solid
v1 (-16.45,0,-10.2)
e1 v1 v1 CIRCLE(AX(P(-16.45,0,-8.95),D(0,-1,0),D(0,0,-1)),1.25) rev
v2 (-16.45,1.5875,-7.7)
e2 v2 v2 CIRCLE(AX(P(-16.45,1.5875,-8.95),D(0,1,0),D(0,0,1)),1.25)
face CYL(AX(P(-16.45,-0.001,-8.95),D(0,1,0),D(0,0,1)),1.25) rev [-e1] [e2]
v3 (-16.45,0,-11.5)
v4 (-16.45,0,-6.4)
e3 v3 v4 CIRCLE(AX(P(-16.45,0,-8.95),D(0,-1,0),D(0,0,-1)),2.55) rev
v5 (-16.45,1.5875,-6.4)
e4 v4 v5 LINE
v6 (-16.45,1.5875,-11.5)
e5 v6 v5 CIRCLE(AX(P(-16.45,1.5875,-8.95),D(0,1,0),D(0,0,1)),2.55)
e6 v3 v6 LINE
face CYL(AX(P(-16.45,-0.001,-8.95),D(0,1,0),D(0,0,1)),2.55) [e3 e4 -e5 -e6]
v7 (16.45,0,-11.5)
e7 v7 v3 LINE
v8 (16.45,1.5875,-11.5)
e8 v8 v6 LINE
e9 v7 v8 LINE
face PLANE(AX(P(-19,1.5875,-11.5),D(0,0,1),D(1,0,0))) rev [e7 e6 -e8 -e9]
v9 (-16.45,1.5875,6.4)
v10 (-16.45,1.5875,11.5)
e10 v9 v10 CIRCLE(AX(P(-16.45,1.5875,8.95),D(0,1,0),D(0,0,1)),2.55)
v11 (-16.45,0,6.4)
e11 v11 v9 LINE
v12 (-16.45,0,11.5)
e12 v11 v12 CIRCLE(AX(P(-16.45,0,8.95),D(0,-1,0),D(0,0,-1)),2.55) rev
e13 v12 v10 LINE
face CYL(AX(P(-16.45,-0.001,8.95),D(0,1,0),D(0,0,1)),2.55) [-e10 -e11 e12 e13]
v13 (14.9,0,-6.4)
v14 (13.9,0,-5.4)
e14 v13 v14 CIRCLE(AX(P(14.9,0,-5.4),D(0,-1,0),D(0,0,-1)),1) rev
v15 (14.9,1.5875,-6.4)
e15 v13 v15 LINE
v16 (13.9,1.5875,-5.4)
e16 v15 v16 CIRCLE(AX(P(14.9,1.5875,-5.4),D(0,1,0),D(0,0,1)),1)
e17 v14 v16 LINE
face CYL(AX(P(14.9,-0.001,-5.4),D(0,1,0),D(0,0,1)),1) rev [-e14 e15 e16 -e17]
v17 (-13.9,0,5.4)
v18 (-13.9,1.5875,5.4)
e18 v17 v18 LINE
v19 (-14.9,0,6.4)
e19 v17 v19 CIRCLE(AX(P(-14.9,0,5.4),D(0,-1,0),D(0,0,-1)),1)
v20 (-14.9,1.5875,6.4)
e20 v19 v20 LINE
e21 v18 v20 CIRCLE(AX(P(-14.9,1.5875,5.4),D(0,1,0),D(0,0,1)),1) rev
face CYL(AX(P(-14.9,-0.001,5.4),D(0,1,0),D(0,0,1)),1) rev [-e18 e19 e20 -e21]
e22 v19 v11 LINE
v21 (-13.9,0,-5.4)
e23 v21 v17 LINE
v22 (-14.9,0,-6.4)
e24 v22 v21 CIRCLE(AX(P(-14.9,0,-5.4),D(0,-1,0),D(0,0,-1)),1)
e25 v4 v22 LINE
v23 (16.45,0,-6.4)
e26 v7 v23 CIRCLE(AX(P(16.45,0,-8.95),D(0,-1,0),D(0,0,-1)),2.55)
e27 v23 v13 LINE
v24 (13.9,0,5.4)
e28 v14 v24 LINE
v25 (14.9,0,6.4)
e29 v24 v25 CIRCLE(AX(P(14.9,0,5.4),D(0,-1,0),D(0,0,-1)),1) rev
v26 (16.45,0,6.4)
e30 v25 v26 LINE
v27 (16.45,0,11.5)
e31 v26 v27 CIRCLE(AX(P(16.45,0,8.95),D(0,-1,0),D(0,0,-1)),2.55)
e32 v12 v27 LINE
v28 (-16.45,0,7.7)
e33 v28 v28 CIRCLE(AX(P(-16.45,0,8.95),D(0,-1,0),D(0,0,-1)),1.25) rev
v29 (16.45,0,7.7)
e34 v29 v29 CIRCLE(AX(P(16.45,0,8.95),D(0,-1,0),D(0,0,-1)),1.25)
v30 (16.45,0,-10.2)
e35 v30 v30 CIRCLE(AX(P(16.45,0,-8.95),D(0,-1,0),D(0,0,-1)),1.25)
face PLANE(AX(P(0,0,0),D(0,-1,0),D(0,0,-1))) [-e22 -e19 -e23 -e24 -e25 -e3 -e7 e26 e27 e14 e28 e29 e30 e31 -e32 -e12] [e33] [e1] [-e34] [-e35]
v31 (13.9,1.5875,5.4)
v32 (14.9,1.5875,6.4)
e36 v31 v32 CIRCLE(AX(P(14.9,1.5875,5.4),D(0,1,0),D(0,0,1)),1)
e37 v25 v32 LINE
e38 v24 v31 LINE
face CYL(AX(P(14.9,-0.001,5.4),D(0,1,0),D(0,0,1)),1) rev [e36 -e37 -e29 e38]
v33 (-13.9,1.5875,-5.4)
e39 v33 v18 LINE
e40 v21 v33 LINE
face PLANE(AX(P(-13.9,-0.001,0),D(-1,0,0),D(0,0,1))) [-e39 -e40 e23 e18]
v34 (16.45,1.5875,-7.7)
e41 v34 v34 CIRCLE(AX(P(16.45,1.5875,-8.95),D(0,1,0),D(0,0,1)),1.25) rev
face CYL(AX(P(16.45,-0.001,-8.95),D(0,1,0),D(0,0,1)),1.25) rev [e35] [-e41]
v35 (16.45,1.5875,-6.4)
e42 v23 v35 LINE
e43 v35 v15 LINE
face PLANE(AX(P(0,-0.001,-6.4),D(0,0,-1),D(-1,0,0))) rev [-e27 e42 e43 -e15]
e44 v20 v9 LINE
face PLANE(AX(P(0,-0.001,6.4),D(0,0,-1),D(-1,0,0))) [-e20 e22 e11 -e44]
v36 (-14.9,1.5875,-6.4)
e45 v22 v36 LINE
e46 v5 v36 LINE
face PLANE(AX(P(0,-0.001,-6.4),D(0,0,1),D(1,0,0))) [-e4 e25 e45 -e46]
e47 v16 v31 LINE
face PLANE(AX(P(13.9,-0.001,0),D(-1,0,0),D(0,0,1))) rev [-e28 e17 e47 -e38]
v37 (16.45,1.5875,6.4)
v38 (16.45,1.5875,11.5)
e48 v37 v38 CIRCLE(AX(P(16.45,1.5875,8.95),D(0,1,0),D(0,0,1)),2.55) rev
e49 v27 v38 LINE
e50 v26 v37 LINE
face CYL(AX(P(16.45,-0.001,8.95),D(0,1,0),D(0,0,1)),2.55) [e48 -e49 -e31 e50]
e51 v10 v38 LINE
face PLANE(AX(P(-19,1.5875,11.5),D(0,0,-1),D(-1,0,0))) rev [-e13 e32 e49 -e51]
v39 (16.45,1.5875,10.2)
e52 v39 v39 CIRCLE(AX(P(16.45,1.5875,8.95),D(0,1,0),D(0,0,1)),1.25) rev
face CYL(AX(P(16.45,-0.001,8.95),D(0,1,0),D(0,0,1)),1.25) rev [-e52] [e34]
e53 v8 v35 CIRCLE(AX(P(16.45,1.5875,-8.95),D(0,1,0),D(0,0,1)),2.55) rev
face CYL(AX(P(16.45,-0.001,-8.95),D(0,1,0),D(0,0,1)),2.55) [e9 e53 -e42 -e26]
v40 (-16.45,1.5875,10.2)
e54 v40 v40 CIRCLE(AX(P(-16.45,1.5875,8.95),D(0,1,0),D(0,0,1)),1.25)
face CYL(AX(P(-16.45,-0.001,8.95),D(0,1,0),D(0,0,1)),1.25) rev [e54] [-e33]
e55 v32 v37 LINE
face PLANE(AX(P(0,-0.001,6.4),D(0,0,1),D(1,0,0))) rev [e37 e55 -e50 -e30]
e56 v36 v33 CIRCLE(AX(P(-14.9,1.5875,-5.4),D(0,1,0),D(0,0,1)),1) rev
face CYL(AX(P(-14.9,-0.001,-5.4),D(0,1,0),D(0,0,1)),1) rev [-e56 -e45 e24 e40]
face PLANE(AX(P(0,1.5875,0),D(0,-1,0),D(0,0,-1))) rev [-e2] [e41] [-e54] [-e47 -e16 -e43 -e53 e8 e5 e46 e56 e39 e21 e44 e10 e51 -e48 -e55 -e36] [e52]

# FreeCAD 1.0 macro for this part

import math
import FreeCAD as App
import Part
import Sketcher
from FreeCAD import Vector


def add_polygon(sketch, points):
    """Adds a closed chain of lines whose ends are joined by coincident constraints."""
    first, n = sketch.GeometryCount, len(points)
    for a, b in zip(points, points[1:] + points[:1]):
        sketch.addGeometry(Part.LineSegment(App.Vector(*a, 0), App.Vector(*b, 0)), False)
    for i in range(n):
        sketch.addConstraint(Sketcher.Constraint("Coincident", first + i, 2, first + (i + 1) % n, 1))

doc = App.newDocument("Part")
body = doc.addObject("PartDesign::Body", "Body")

# Sketch on XZ plane
sketch1 = doc.addObject("Sketcher::SketchObject", "Sketch")
body.addObject(sketch1)
sketch1.AttachmentSupport = (doc.XZ_Plane, [""])
sketch1.MapMode = "FlatFace"
add_polygon(sketch1, [(-19, -12), (-19, 12), (19, 12), (19, -12)])  # lines 0-3
sketch1.addConstraint(Sketcher.Constraint("Vertical", 0))
sketch1.addConstraint(Sketcher.Constraint("Horizontal", 1))
sketch1.addConstraint(Sketcher.Constraint("Vertical", 2))
sketch1.addConstraint(Sketcher.Constraint("Horizontal", 3))
sketch1.addConstraint(Sketcher.Constraint("Symmetric", 0, 2, 2, 2, -1, 1))
sketch1.addConstraint(Sketcher.Constraint("DistanceX", 1, 1, 1, 2, 38.0))
sketch1.addConstraint(Sketcher.Constraint("DistanceY", 0, 1, 0, 2, 23.0))
pad1 = doc.addObject("PartDesign::Pad", "Pad")
body.addObject(pad1)
pad1.Profile = sketch1
pad1.Length = 1.5875
pad1.Reversed = True

# Sketch on XZ plane
sketch2 = doc.addObject("Sketcher::SketchObject", "Sketch001")
body.addObject(sketch2)
sketch2.AttachmentSupport = (doc.XZ_Plane, [""])
sketch2.MapMode = "FlatFace"
sketch2.AttachmentOffset = App.Placement(Vector(0, 0, -1.5875), App.Rotation())
sketch2.addGeometry(Part.LineSegment(Vector(-19, -11.5, 0), Vector(-19, -8.9, 0)), False)
sketch2.addGeometry(Part.ArcOfCircle(Part.Circle(Vector(-16.4, -8.9, 0), Vector(0, 0, 1), 2.5), math.radians(180), math.radians(270)), False)
sketch2.addGeometry(Part.LineSegment(Vector(-16.4, -11.5, 0), Vector(-19, -11.5, 0)), False)
sketch2.addConstraint(Sketcher.Constraint("Tangent", 0, 2, 1, 1))
sketch2.addConstraint(Sketcher.Constraint("Tangent", 1, 2, 2, 1))
sketch2.addConstraint(Sketcher.Constraint("Coincident", 2, 2, 0, 1))
sketch2.addConstraint(Sketcher.Constraint("Vertical", 0))
sketch2.addConstraint(Sketcher.Constraint("Horizontal", 2))
sketch2.addConstraint(Sketcher.Constraint("Radius", 1, 2.55))
sketch2.addConstraint(Sketcher.Constraint("DistanceX", 0, 2, -1, 1, 19.0))
sketch2.addConstraint(Sketcher.Constraint("DistanceY", 1, 2, -1, 1, 11.5))
pocket1 = doc.addObject("PartDesign::Pocket", "Pocket")
body.addObject(pocket1)
pocket1.Profile = sketch2
pocket1.Type = "UpToFirst"
pocket1.Reversed = True

# Sketch on XZ plane
sketch3 = doc.addObject("Sketcher::SketchObject", "Sketch002")
body.addObject(sketch3)
sketch3.AttachmentSupport = (doc.XZ_Plane, [""])
sketch3.MapMode = "FlatFace"
sketch3.AttachmentOffset = App.Placement(Vector(0, 0, -1.5875), App.Rotation())
sketch3.addGeometry(Part.Circle(Vector(-16.4, -8.9, 0), Vector(0, 0, 1), 1.2), False)
sketch3.addConstraint(Sketcher.Constraint("Diameter", 0, 2.5))
sketch3.addConstraint(Sketcher.Constraint("DistanceX", 0, 3, -1, 1, 16.45))
sketch3.addConstraint(Sketcher.Constraint("DistanceY", 0, 3, -1, 1, 8.95))
pocket2 = doc.addObject("PartDesign::Pocket", "Pocket001")
body.addObject(pocket2)
pocket2.Profile = sketch3
pocket2.Type = "UpToFirst"
pocket2.Reversed = True

# Sketch on XZ plane
sketch4 = doc.addObject("Sketcher::SketchObject", "Sketch003")
body.addObject(sketch4)
sketch4.AttachmentSupport = (doc.XZ_Plane, [""])
sketch4.MapMode = "FlatFace"
sketch4.AttachmentOffset = App.Placement(Vector(0, 0, -1.5875), App.Rotation())
sketch4.addGeometry(Part.LineSegment(Vector(-14.9, -6.4, 0), Vector(-16.4, -6.4, 0)), False)
sketch4.addGeometry(Part.ArcOfCircle(Part.Circle(Vector(-16.4, -8.9, 0), Vector(0, 0, 1), 2.5), math.radians(90), math.radians(180)), False)
sketch4.addGeometry(Part.LineSegment(Vector(-19, -8.9, 0), Vector(-19, 8.9, 0)), False)
sketch4.addGeometry(Part.ArcOfCircle(Part.Circle(Vector(-16.4, 8.9, 0), Vector(0, 0, 1), 2.5), math.radians(180), math.radians(270)), False)
sketch4.addGeometry(Part.LineSegment(Vector(-16.4, 6.4, 0), Vector(-14.9, 6.4, 0)), False)
sketch4.addGeometry(Part.ArcOfCircle(Part.Circle(Vector(-14.9, 5.4, 0), Vector(0, 0, 1), 1), math.radians(0), math.radians(90)), False)
sketch4.addGeometry(Part.LineSegment(Vector(-13.9, 5.4, 0), Vector(-13.9, -5.4, 0)), False)
sketch4.addGeometry(Part.ArcOfCircle(Part.Circle(Vector(-14.9, -5.4, 0), Vector(0, 0, 1), 1), math.radians(-90), math.radians(0)), False)
sketch4.addConstraint(Sketcher.Constraint("Tangent", 0, 2, 1, 1))
sketch4.addConstraint(Sketcher.Constraint("Tangent", 1, 2, 2, 1))
sketch4.addConstraint(Sketcher.Constraint("Tangent", 2, 2, 3, 1))
sketch4.addConstraint(Sketcher.Constraint("Tangent", 3, 2, 4, 1))
sketch4.addConstraint(Sketcher.Constraint("Tangent", 4, 2, 5, 2))
sketch4.addConstraint(Sketcher.Constraint("Tangent", 5, 1, 6, 1))
sketch4.addConstraint(Sketcher.Constraint("Tangent", 6, 2, 7, 2))
sketch4.addConstraint(Sketcher.Constraint("Tangent", 7, 1, 0, 1))
sketch4.addConstraint(Sketcher.Constraint("Horizontal", 0))
sketch4.addConstraint(Sketcher.Constraint("Vertical", 2))
sketch4.addConstraint(Sketcher.Constraint("Horizontal", 4))
sketch4.addConstraint(Sketcher.Constraint("Vertical", 6))
sketch4.addConstraint(Sketcher.Constraint("Equal", 1, 3))
sketch4.addConstraint(Sketcher.Constraint("Equal", 5, 7))
sketch4.addConstraint(Sketcher.Constraint("Radius", 5, 1.0))
sketch4.addConstraint(Sketcher.Constraint("Radius", 1, 2.55))
sketch4.addConstraint(Sketcher.Constraint("DistanceY", 2, 1, 2, 2, 17.9))
sketch4.addConstraint(Sketcher.Constraint("DistanceX", 1, 2, -1, 1, 19.0))
sketch4.addConstraint(Sketcher.Constraint("DistanceX", 0, 2, 0, 1, 1.55))
sketch4.addConstraint(Sketcher.Constraint("DistanceY", -1, 1, 5, 3, 5.4))
pocket3 = doc.addObject("PartDesign::Pocket", "Pocket002")
body.addObject(pocket3)
pocket3.Profile = sketch4
pocket3.Type = "UpToFirst"
pocket3.Reversed = True

# Sketch on XZ plane
sketch5 = doc.addObject("Sketcher::SketchObject", "Sketch004")
body.addObject(sketch5)
sketch5.AttachmentSupport = (doc.XZ_Plane, [""])
sketch5.MapMode = "FlatFace"
sketch5.AttachmentOffset = App.Placement(Vector(0, 0, -1.5875), App.Rotation())
sketch5.addGeometry(Part.ArcOfCircle(Part.Circle(Vector(-16.4, 8.9, 0), Vector(0, 0, 1), 2.5), math.radians(90), math.radians(180)), False)
sketch5.addGeometry(Part.LineSegment(Vector(-19, 8.9, 0), Vector(-19, 11.5, 0)), False)
sketch5.addGeometry(Part.LineSegment(Vector(-19, 11.5, 0), Vector(-16.4, 11.5, 0)), False)
sketch5.addConstraint(Sketcher.Constraint("Tangent", 0, 2, 1, 1))
sketch5.addConstraint(Sketcher.Constraint("Coincident", 1, 2, 2, 1))
sketch5.addConstraint(Sketcher.Constraint("Tangent", 2, 2, 0, 1))
sketch5.addConstraint(Sketcher.Constraint("Vertical", 1))
sketch5.addConstraint(Sketcher.Constraint("Horizontal", 2))
sketch5.addConstraint(Sketcher.Constraint("Radius", 0, 2.55))
sketch5.addConstraint(Sketcher.Constraint("DistanceX", 0, 2, -1, 1, 19.0))
sketch5.addConstraint(Sketcher.Constraint("DistanceY", -1, 1, 1, 2, 11.5))
pocket4 = doc.addObject("PartDesign::Pocket", "Pocket003")
body.addObject(pocket4)
pocket4.Profile = sketch5
pocket4.Type = "UpToFirst"
pocket4.Reversed = True

# Sketch on XZ plane
sketch6 = doc.addObject("Sketcher::SketchObject", "Sketch005")
body.addObject(sketch6)
sketch6.AttachmentSupport = (doc.XZ_Plane, [""])
sketch6.MapMode = "FlatFace"
sketch6.AttachmentOffset = App.Placement(Vector(0, 0, -1.5875), App.Rotation())
sketch6.addGeometry(Part.Circle(Vector(-16.4, 8.9, 0), Vector(0, 0, 1), 1.2), False)
sketch6.addConstraint(Sketcher.Constraint("Diameter", 0, 2.5))
sketch6.addConstraint(Sketcher.Constraint("DistanceX", 0, 3, -1, 1, 16.45))
sketch6.addConstraint(Sketcher.Constraint("DistanceY", -1, 1, 0, 3, 8.95))
pocket5 = doc.addObject("PartDesign::Pocket", "Pocket004")
body.addObject(pocket5)
pocket5.Profile = sketch6
pocket5.Type = "UpToFirst"
pocket5.Reversed = True

# Sketch on XZ plane
sketch7 = doc.addObject("Sketcher::SketchObject", "Sketch006")
body.addObject(sketch7)
sketch7.AttachmentSupport = (doc.XZ_Plane, [""])
sketch7.MapMode = "FlatFace"
sketch7.AttachmentOffset = App.Placement(Vector(0, 0, -1.5875), App.Rotation())
sketch7.addGeometry(Part.Circle(Vector(16.4, 8.9, 0), Vector(0, 0, 1), 1.2), False)
sketch7.addConstraint(Sketcher.Constraint("Diameter", 0, 2.5))
sketch7.addConstraint(Sketcher.Constraint("DistanceX", -1, 1, 0, 3, 16.45))
sketch7.addConstraint(Sketcher.Constraint("DistanceY", -1, 1, 0, 3, 8.95))
pocket6 = doc.addObject("PartDesign::Pocket", "Pocket005")
body.addObject(pocket6)
pocket6.Profile = sketch7
pocket6.Type = "UpToFirst"
pocket6.Reversed = True

# Sketch on XZ plane
sketch8 = doc.addObject("Sketcher::SketchObject", "Sketch007")
body.addObject(sketch8)
sketch8.AttachmentSupport = (doc.XZ_Plane, [""])
sketch8.MapMode = "FlatFace"
sketch8.AttachmentOffset = App.Placement(Vector(0, 0, -1.5875), App.Rotation())
sketch8.addGeometry(Part.ArcOfCircle(Part.Circle(Vector(16.4, 8.9, 0), Vector(0, 0, 1), 2.5), math.radians(0), math.radians(90)), False)
sketch8.addGeometry(Part.LineSegment(Vector(16.5, 11.5, 0), Vector(19, 11.5, 0)), False)
sketch8.addGeometry(Part.LineSegment(Vector(19, 11.5, 0), Vector(19, 8.9, 0)), False)
sketch8.addConstraint(Sketcher.Constraint("Tangent", 0, 2, 1, 1))
sketch8.addConstraint(Sketcher.Constraint("Coincident", 1, 2, 2, 1))
sketch8.addConstraint(Sketcher.Constraint("Tangent", 2, 2, 0, 1))
sketch8.addConstraint(Sketcher.Constraint("Horizontal", 1))
sketch8.addConstraint(Sketcher.Constraint("Vertical", 2))
sketch8.addConstraint(Sketcher.Constraint("Radius", 0, 2.55))
sketch8.addConstraint(Sketcher.Constraint("DistanceX", -1, 1, 1, 2, 19.0))
sketch8.addConstraint(Sketcher.Constraint("DistanceY", -1, 1, 0, 2, 11.5))
pocket7 = doc.addObject("PartDesign::Pocket", "Pocket006")
body.addObject(pocket7)
pocket7.Profile = sketch8
pocket7.Type = "UpToFirst"
pocket7.Reversed = True

# Sketch on XZ plane
sketch9 = doc.addObject("Sketcher::SketchObject", "Sketch008")
body.addObject(sketch9)
sketch9.AttachmentSupport = (doc.XZ_Plane, [""])
sketch9.MapMode = "FlatFace"
sketch9.AttachmentOffset = App.Placement(Vector(0, 0, -1.5875), App.Rotation())
sketch9.addGeometry(Part.LineSegment(Vector(19, 8.9, 0), Vector(19, -8.9, 0)), False)
sketch9.addGeometry(Part.ArcOfCircle(Part.Circle(Vector(16.4, -8.9, 0), Vector(0, 0, 1), 2.5), math.radians(0), math.radians(90)), False)
sketch9.addGeometry(Part.LineSegment(Vector(16.4, -6.4, 0), Vector(14.9, -6.4, 0)), False)
sketch9.addGeometry(Part.ArcOfCircle(Part.Circle(Vector(14.9, -5.4, 0), Vector(0, 0, 1), 1), math.radians(-180), math.radians(-90)), False)
sketch9.addGeometry(Part.LineSegment(Vector(13.9, -5.4, 0), Vector(13.9, 5.4, 0)), False)
sketch9.addGeometry(Part.ArcOfCircle(Part.Circle(Vector(14.9, 5.4, 0), Vector(0, 0, 1), 1), math.radians(90), math.radians(180)), False)
sketch9.addGeometry(Part.LineSegment(Vector(14.9, 6.4, 0), Vector(16.4, 6.4, 0)), False)
sketch9.addGeometry(Part.ArcOfCircle(Part.Circle(Vector(16.4, 8.9, 0), Vector(0, 0, 1), 2.5), math.radians(-90), math.radians(0)), False)
sketch9.addConstraint(Sketcher.Constraint("Tangent", 0, 2, 1, 1))
sketch9.addConstraint(Sketcher.Constraint("Tangent", 1, 2, 2, 1))
sketch9.addConstraint(Sketcher.Constraint("Tangent", 2, 2, 3, 2))
sketch9.addConstraint(Sketcher.Constraint("Tangent", 3, 1, 4, 1))
sketch9.addConstraint(Sketcher.Constraint("Tangent", 4, 2, 5, 2))
sketch9.addConstraint(Sketcher.Constraint("Tangent", 5, 1, 6, 1))
sketch9.addConstraint(Sketcher.Constraint("Tangent", 6, 2, 7, 1))
sketch9.addConstraint(Sketcher.Constraint("Tangent", 7, 2, 0, 1))
sketch9.addConstraint(Sketcher.Constraint("Vertical", 0))
sketch9.addConstraint(Sketcher.Constraint("Horizontal", 2))
sketch9.addConstraint(Sketcher.Constraint("Vertical", 4))
sketch9.addConstraint(Sketcher.Constraint("Horizontal", 6))
sketch9.addConstraint(Sketcher.Constraint("Equal", 3, 5))
sketch9.addConstraint(Sketcher.Constraint("Equal", 1, 7))
sketch9.addConstraint(Sketcher.Constraint("Radius", 3, 1.0))
sketch9.addConstraint(Sketcher.Constraint("Radius", 1, 2.55))
sketch9.addConstraint(Sketcher.Constraint("DistanceY", 0, 2, 0, 1, 17.9))
sketch9.addConstraint(Sketcher.Constraint("DistanceX", -1, 1, 0, 2, 19.0))
sketch9.addConstraint(Sketcher.Constraint("DistanceX", 2, 2, 2, 1, 1.55))
sketch9.addConstraint(Sketcher.Constraint("DistanceY", 3, 3, -1, 1, 5.4))
pocket8 = doc.addObject("PartDesign::Pocket", "Pocket007")
body.addObject(pocket8)
pocket8.Profile = sketch9
pocket8.Type = "UpToFirst"
pocket8.Reversed = True

# Sketch on XZ plane
sketch10 = doc.addObject("Sketcher::SketchObject", "Sketch009")
body.addObject(sketch10)
sketch10.AttachmentSupport = (doc.XZ_Plane, [""])
sketch10.MapMode = "FlatFace"
sketch10.AttachmentOffset = App.Placement(Vector(0, 0, -1.5875), App.Rotation())
sketch10.addGeometry(Part.LineSegment(Vector(19, -11.5, 0), Vector(16.4, -11.5, 0)), False)
sketch10.addGeometry(Part.ArcOfCircle(Part.Circle(Vector(16.4, -8.9, 0), Vector(0, 0, 1), 2.5), math.radians(-90), math.radians(0)), False)
sketch10.addGeometry(Part.LineSegment(Vector(19, -8.9, 0), Vector(19, -11.5, 0)), False)
sketch10.addConstraint(Sketcher.Constraint("Tangent", 0, 2, 1, 1))
sketch10.addConstraint(Sketcher.Constraint("Tangent", 1, 2, 2, 1))
sketch10.addConstraint(Sketcher.Constraint("Coincident", 2, 2, 0, 1))
sketch10.addConstraint(Sketcher.Constraint("Horizontal", 0))
sketch10.addConstraint(Sketcher.Constraint("Vertical", 2))
sketch10.addConstraint(Sketcher.Constraint("Radius", 1, 2.55))
sketch10.addConstraint(Sketcher.Constraint("DistanceX", -1, 1, 1, 2, 19.0))
sketch10.addConstraint(Sketcher.Constraint("DistanceY", 0, 2, -1, 1, 11.5))
pocket9 = doc.addObject("PartDesign::Pocket", "Pocket008")
body.addObject(pocket9)
pocket9.Profile = sketch10
pocket9.Type = "UpToFirst"
pocket9.Reversed = True

# Sketch on XZ plane
sketch11 = doc.addObject("Sketcher::SketchObject", "Sketch010")
body.addObject(sketch11)
sketch11.AttachmentSupport = (doc.XZ_Plane, [""])
sketch11.MapMode = "FlatFace"
sketch11.AttachmentOffset = App.Placement(Vector(0, 0, -1.5875), App.Rotation())
sketch11.addGeometry(Part.Circle(Vector(16.4, -8.9, 0), Vector(0, 0, 1), 1.2), False)
sketch11.addConstraint(Sketcher.Constraint("Diameter", 0, 2.5))
sketch11.addConstraint(Sketcher.Constraint("DistanceX", -1, 1, 0, 3, 16.45))
sketch11.addConstraint(Sketcher.Constraint("DistanceY", 0, 3, -1, 1, 8.95))
pocket10 = doc.addObject("PartDesign::Pocket", "Pocket009")
body.addObject(pocket10)
pocket10.Profile = sketch11
pocket10.Type = "UpToFirst"
pocket10.Reversed = True

doc.recompute()
